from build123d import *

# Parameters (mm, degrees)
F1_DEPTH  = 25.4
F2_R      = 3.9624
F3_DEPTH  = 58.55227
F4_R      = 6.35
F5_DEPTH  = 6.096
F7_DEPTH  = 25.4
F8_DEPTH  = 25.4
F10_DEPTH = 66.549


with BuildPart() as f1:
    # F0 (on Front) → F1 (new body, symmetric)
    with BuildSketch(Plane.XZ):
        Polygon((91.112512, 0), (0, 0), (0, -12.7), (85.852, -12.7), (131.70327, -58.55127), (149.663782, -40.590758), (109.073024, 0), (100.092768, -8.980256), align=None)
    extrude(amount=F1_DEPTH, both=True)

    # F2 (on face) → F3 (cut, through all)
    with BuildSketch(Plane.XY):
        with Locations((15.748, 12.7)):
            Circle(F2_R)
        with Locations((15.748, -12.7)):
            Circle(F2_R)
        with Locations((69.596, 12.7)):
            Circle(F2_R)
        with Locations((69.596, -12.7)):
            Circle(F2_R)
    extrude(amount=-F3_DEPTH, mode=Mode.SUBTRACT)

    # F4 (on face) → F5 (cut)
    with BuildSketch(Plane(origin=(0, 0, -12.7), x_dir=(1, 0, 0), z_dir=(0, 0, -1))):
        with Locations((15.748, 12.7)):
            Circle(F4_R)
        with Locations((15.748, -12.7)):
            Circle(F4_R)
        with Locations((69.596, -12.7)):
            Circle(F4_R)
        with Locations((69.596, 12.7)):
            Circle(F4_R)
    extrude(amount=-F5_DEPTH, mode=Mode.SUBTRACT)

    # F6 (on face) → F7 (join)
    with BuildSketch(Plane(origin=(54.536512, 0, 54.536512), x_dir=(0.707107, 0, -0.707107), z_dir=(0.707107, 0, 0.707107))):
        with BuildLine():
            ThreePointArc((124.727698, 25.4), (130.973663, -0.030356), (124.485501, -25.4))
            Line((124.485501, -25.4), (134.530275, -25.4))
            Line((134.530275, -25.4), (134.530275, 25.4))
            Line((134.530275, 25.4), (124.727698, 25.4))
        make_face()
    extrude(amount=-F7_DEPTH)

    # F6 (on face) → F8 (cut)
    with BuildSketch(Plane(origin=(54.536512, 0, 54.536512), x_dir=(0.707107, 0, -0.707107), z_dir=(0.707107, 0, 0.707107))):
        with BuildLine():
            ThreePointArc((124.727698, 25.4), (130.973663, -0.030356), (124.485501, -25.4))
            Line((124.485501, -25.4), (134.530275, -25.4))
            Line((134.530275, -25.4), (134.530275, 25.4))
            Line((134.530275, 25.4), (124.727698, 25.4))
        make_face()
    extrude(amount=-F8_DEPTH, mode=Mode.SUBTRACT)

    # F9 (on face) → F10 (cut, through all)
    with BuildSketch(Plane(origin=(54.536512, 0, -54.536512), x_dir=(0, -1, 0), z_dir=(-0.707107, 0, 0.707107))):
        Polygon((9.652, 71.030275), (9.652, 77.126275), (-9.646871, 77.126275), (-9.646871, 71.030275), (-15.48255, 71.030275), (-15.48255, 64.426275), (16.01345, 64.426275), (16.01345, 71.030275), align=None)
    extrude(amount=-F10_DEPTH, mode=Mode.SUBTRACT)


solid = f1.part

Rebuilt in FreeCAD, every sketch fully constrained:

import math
import FreeCAD as App
import Part
import Sketcher
from FreeCAD import Vector
Q = App.Units.Quantity


def add_polygon(sketch, points):
    """Adds a closed chain of lines whose ends are joined by coincident constraints."""
    first, n = sketch.GeometryCount, len(points)
    for a, b in zip(points, points[1:] + points[:1]):
        sketch.addGeometry(Part.LineSegment(App.Vector(*a, 0), App.Vector(*b, 0)), False)
    for i in range(n):
        sketch.addConstraint(Sketcher.Constraint("Coincident", first + i, 2, first + (i + 1) % n, 1))

doc = App.newDocument("Part")
body = doc.addObject("PartDesign::Body", "Body")

sketch1 = doc.addObject("Sketcher::SketchObject", "Sketch")
body.addObject(sketch1)
sketch1.AttachmentSupport = (doc.XZ_Plane, [""])
sketch1.MapMode = "FlatFace"
add_polygon(sketch1, [(91.112512, 0), (0, 0), (0, -12.7), (85.852, -12.7), (131.70327, -58.55127), (149.663782, -40.590758), (109.073024, 0), (100.092768, -8.980256)])
sketch1.addConstraint(Sketcher.Constraint("Horizontal", 0))
sketch1.addConstraint(Sketcher.Constraint("Vertical", 1))
sketch1.addConstraint(Sketcher.Constraint("Horizontal", 2))
sketch1.addConstraint(Sketcher.Constraint("Coincident", 0, 2, -1, 1))
sketch1.addConstraint(Sketcher.Constraint("PointOnObject", 5, 2, -1))
sketch1.addConstraint(Sketcher.Constraint("Perpendicular", 3, 4))
sketch1.addConstraint(Sketcher.Constraint("Perpendicular", 4, 5))
sketch1.addConstraint(Sketcher.Constraint("Perpendicular", 5, 6))
sketch1.addConstraint(Sketcher.Constraint("Perpendicular", 6, 7))
sketch1.addConstraint(Sketcher.Constraint("Equal", 6, 7))
sketch1.addConstraint(Sketcher.Constraint("Distance", 4, Q("1 in")))
sketch1.addConstraint(Sketcher.Constraint("DistanceY", 1, 2, 1, 1, Q("0.5 in")))
sketch1.addConstraint(Sketcher.Constraint("Distance", 6, Q("0.5 in")))
sketch1.addConstraint(Sketcher.Constraint("DistanceX", 2, 1, 2, 2, Q("3.38 in")))
sketch1.addConstraint(Sketcher.Constraint("Distance", 5, Q("2.26 in")))
pad1 = doc.addObject("PartDesign::Pad", "Pad")
body.addObject(pad1)
pad1.Profile = sketch1
pad1.Length = Q("2 in")
pad1.Midplane = True

sketch2 = doc.addObject("Sketcher::SketchObject", "Sketch001")
body.addObject(sketch2)
sketch2.AttachmentSupport = (doc.XY_Plane, [""])
sketch2.MapMode = "FlatFace"
sketch2.addGeometry(Part.Circle(Vector(15.748, 12.7, 0), Vector(0, 0, 1), 3.9624), False)
sketch2.addGeometry(Part.Circle(Vector(15.748, -12.7, 0), Vector(0, 0, 1), 3.9624), False)
sketch2.addGeometry(Part.Circle(Vector(69.596, 12.7, 0), Vector(0, 0, 1), 3.9624), False)
sketch2.addGeometry(Part.Circle(Vector(69.596, -12.7, 0), Vector(0, 0, 1), 3.9624), False)
sketch2.addConstraint(Sketcher.Constraint("Equal", 0, 1))
sketch2.addConstraint(Sketcher.Constraint("Equal", 1, 2))
sketch2.addConstraint(Sketcher.Constraint("Equal", 2, 3))
sketch2.addConstraint(Sketcher.Constraint("Symmetric", 0, 3, 1, 3, -1))
sketch2.addConstraint(Sketcher.Constraint("Symmetric", 2, 3, 3, 3, -1))
sketch2.addConstraint(Sketcher.Constraint("Horizontal", 0, 3, 2, 3))
sketch2.addConstraint(Sketcher.Constraint("Diameter", 0, Q("0.312 in")))
sketch2.addConstraint(Sketcher.Constraint("DistanceY", 1, 3, 0, 3, Q("1 in")))
sketch2.addConstraint(Sketcher.Constraint("DistanceX", -1, 1, 0, 3, Q("0.62 in")))
sketch2.addConstraint(Sketcher.Constraint("DistanceX", -1, 1, 2, 3, Q("2.74 in")))
pocket1 = doc.addObject("PartDesign::Pocket", "Pocket")
body.addObject(pocket1)
pocket1.Profile = sketch2
pocket1.Type = "ThroughAll"

sketch3 = doc.addObject("Sketcher::SketchObject", "Sketch002")
body.addObject(sketch3)
sketch3.AttachmentSupport = (doc.XY_Plane, [""])
sketch3.MapMode = "FlatFace"
sketch3.AttachmentOffset = App.Placement(Vector(0, 0, -0.5 * 25.4), App.Rotation())
sketch3.addGeometry(Part.Circle(Vector(15.748, -12.7, 0), Vector(0, 0, 1), 6.35), False)
sketch3.addGeometry(Part.Circle(Vector(15.748, 12.7, 0), Vector(0, 0, 1), 6.35), False)
sketch3.addGeometry(Part.Circle(Vector(69.596, 12.7, 0), Vector(0, 0, 1), 6.35), False)
sketch3.addGeometry(Part.Circle(Vector(69.596, -12.7, 0), Vector(0, 0, 1), 6.35), False)
sketch3.addConstraint(Sketcher.Constraint("Equal", 0, 1))
sketch3.addConstraint(Sketcher.Constraint("Equal", 1, 2))
sketch3.addConstraint(Sketcher.Constraint("Equal", 2, 3))
sketch3.addConstraint(Sketcher.Constraint("Symmetric", 0, 3, 1, 3, -1))
sketch3.addConstraint(Sketcher.Constraint("Symmetric", 2, 3, 3, 3, -1))
sketch3.addConstraint(Sketcher.Constraint("Horizontal", 1, 3, 2, 3))
sketch3.addConstraint(Sketcher.Constraint("Diameter", 0, Q("0.5 in")))
sketch3.addConstraint(Sketcher.Constraint("DistanceY", 0, 3, 1, 3, Q("1 in")))
sketch3.addConstraint(Sketcher.Constraint("DistanceX", -1, 1, 0, 3, Q("0.62 in")))
sketch3.addConstraint(Sketcher.Constraint("DistanceX", -1, 1, 2, 3, Q("2.74 in")))
pocket2 = doc.addObject("PartDesign::Pocket", "Pocket001")
body.addObject(pocket2)
pocket2.Profile = sketch3
pocket2.Length = Q("0.24 in")
pocket2.Reversed = True

sketch4 = doc.addObject("Sketcher::SketchObject", "Sketch003")
body.addObject(sketch4)
sketch4.Placement = App.Placement(Vector(54.536512, 0, 54.536512), App.Rotation(Vector(0.707106781, 0, -0.707106781), Vector(0, 0.999999999, 0), Vector(0.707106781, 0, 0.707106781), "ZXY"))
sketch4.addGeometry(Part.ArcOfCircle(Part.Circle(Vector(77.126273, 0.22637, 0), Vector(0, 0, 1), 53.848002), math.radians(-28.418093), math.radians(27.871764)), False)
sketch4.addGeometry(Part.LineSegment(Vector(124.485501, -25.4, 0), Vector(134.530275, -25.4, 0)), False)
sketch4.addGeometry(Part.LineSegment(Vector(134.530275, -25.4, 0), Vector(134.530275, 25.4, 0)), False)
sketch4.addGeometry(Part.LineSegment(Vector(134.530275, 25.4, 0), Vector(124.727698, 25.4, 0)), False)
sketch4.addConstraint(Sketcher.Constraint("Coincident", 0, 1, 1, 1))
sketch4.addConstraint(Sketcher.Constraint("Coincident", 1, 2, 2, 1))
sketch4.addConstraint(Sketcher.Constraint("Coincident", 2, 2, 3, 1))
sketch4.addConstraint(Sketcher.Constraint("Coincident", 3, 2, 0, 2))
sketch4.addConstraint(Sketcher.Constraint("Horizontal", 1))
sketch4.addConstraint(Sketcher.Constraint("Vertical", 2))
sketch4.addConstraint(Sketcher.Constraint("Horizontal", 3))
sketch4.addConstraint(Sketcher.Constraint("DistanceY", 2, 1, 2, 2, Q("2 in")))
sketch4.addConstraint(Sketcher.Constraint("Radius", 0, Q("2.1200001 in")))
sketch4.addConstraint(Sketcher.Constraint("DistanceY", 0, 1, -1, 1, Q("1 in")))
sketch4.addConstraint(Sketcher.Constraint("DistanceX", 0, 3, 1, 2, Q("2.2600001 in")))
sketch4.addConstraint(Sketcher.Constraint("DistanceX", -1, 1, 0, 1, Q("124.485501 mm")))
sketch4.addConstraint(Sketcher.Constraint("DistanceX", 1, 1, 1, 2, Q("10.044774 mm")))
pad2 = doc.addObject("PartDesign::Pad", "Pad001")
body.addObject(pad2)
pad2.Profile = sketch4
pad2.Length = Q("1 in")
pad2.Reversed = True

sketch5 = doc.addObject("Sketcher::SketchObject", "Sketch004")
body.addObject(sketch5)
sketch5.Placement = App.Placement(Vector(54.536512, 0, 54.536512), App.Rotation(Vector(0.707106781, 0, -0.707106781), Vector(0, 0.999999999, 0), Vector(0.707106781, 0, 0.707106781), "ZXY"))
sketch5.addGeometry(Part.ArcOfCircle(Part.Circle(Vector(77.126273, 0.22637, 0), Vector(0, 0, 1), 53.848002), math.radians(-28.418093), math.radians(27.871764)), False)
sketch5.addGeometry(Part.LineSegment(Vector(124.485501, -25.4, 0), Vector(134.530275, -25.4, 0)), False)
sketch5.addGeometry(Part.LineSegment(Vector(134.530275, -25.4, 0), Vector(134.530275, 25.4, 0)), False)
sketch5.addGeometry(Part.LineSegment(Vector(134.530275, 25.4, 0), Vector(124.727698, 25.4, 0)), False)
sketch5.addConstraint(Sketcher.Constraint("Coincident", 0, 1, 1, 1))
sketch5.addConstraint(Sketcher.Constraint("Coincident", 1, 2, 2, 1))
sketch5.addConstraint(Sketcher.Constraint("Coincident", 2, 2, 3, 1))
sketch5.addConstraint(Sketcher.Constraint("Coincident", 3, 2, 0, 2))
sketch5.addConstraint(Sketcher.Constraint("Horizontal", 1))
sketch5.addConstraint(Sketcher.Constraint("Vertical", 2))
sketch5.addConstraint(Sketcher.Constraint("Horizontal", 3))
sketch5.addConstraint(Sketcher.Constraint("DistanceY", 2, 1, 2, 2, Q("2 in")))
sketch5.addConstraint(Sketcher.Constraint("Radius", 0, Q("2.1200001 in")))
sketch5.addConstraint(Sketcher.Constraint("DistanceY", 0, 1, -1, 1, Q("1 in")))
sketch5.addConstraint(Sketcher.Constraint("DistanceX", 0, 3, 1, 2, Q("2.2600001 in")))
sketch5.addConstraint(Sketcher.Constraint("DistanceX", -1, 1, 0, 1, Q("124.485501 mm")))
sketch5.addConstraint(Sketcher.Constraint("DistanceX", 1, 1, 1, 2, Q("10.044774 mm")))
pocket3 = doc.addObject("PartDesign::Pocket", "Pocket002")
body.addObject(pocket3)
pocket3.Profile = sketch5
pocket3.Length = Q("1 in")

sketch6 = doc.addObject("Sketcher::SketchObject", "Sketch005")
body.addObject(sketch6)
sketch6.Placement = App.Placement(Vector(54.536512, 0, -54.536512), App.Rotation(Vector(0, -1, 0), Vector(0.707106781, 0, 0.707106781), Vector(-0.707106781, 0, 0.707106781), "ZXY"))
add_polygon(sketch6, [(9.652, 71.030275), (9.652, 77.126275), (-9.646871, 77.126275), (-9.646871, 71.030275), (-15.48255, 71.030275), (-15.48255, 64.426275), (16.01345, 64.426275), (16.01345, 71.030275)])
sketch6.addConstraint(Sketcher.Constraint("Vertical", 0))
sketch6.addConstraint(Sketcher.Constraint("Horizontal", 1))
sketch6.addConstraint(Sketcher.Constraint("Vertical", 2))
sketch6.addConstraint(Sketcher.Constraint("Horizontal", 3))
sketch6.addConstraint(Sketcher.Constraint("Vertical", 4))
sketch6.addConstraint(Sketcher.Constraint("Horizontal", 5))
sketch6.addConstraint(Sketcher.Constraint("Vertical", 6))
sketch6.addConstraint(Sketcher.Constraint("Horizontal", 7))
sketch6.addConstraint(Sketcher.Constraint("Horizontal", 3, 2, 6, 2))
sketch6.addConstraint(Sketcher.Constraint("DistanceX", 5, 1, 5, 2, Q("1.24 in")))
sketch6.addConstraint(Sketcher.Constraint("DistanceY", 0, 1, 0, 2, Q("0.24 in")))
sketch6.addConstraint(Sketcher.Constraint("DistanceY", 4, 2, 4, 1, Q("0.26 in")))
sketch6.addConstraint(Sketcher.Constraint("DistanceX", -1, 1, 0, 2, Q("0.38 in")))
sketch6.addConstraint(Sketcher.Constraint("DistanceX", 1, 2, 1, 1, Q("19.298871 mm")))
sketch6.addConstraint(Sketcher.Constraint("DistanceX", 3, 2, 3, 1, Q("5.835679 mm")))
sketch6.addConstraint(Sketcher.Constraint("DistanceY", -1, 1, 0, 2, Q("77.126275 mm")))
pocket4 = doc.addObject("PartDesign::Pocket", "Pocket003")
body.addObject(pocket4)
pocket4.Profile = sketch6
pocket4.Type = "ThroughAll"

doc.recompute()
